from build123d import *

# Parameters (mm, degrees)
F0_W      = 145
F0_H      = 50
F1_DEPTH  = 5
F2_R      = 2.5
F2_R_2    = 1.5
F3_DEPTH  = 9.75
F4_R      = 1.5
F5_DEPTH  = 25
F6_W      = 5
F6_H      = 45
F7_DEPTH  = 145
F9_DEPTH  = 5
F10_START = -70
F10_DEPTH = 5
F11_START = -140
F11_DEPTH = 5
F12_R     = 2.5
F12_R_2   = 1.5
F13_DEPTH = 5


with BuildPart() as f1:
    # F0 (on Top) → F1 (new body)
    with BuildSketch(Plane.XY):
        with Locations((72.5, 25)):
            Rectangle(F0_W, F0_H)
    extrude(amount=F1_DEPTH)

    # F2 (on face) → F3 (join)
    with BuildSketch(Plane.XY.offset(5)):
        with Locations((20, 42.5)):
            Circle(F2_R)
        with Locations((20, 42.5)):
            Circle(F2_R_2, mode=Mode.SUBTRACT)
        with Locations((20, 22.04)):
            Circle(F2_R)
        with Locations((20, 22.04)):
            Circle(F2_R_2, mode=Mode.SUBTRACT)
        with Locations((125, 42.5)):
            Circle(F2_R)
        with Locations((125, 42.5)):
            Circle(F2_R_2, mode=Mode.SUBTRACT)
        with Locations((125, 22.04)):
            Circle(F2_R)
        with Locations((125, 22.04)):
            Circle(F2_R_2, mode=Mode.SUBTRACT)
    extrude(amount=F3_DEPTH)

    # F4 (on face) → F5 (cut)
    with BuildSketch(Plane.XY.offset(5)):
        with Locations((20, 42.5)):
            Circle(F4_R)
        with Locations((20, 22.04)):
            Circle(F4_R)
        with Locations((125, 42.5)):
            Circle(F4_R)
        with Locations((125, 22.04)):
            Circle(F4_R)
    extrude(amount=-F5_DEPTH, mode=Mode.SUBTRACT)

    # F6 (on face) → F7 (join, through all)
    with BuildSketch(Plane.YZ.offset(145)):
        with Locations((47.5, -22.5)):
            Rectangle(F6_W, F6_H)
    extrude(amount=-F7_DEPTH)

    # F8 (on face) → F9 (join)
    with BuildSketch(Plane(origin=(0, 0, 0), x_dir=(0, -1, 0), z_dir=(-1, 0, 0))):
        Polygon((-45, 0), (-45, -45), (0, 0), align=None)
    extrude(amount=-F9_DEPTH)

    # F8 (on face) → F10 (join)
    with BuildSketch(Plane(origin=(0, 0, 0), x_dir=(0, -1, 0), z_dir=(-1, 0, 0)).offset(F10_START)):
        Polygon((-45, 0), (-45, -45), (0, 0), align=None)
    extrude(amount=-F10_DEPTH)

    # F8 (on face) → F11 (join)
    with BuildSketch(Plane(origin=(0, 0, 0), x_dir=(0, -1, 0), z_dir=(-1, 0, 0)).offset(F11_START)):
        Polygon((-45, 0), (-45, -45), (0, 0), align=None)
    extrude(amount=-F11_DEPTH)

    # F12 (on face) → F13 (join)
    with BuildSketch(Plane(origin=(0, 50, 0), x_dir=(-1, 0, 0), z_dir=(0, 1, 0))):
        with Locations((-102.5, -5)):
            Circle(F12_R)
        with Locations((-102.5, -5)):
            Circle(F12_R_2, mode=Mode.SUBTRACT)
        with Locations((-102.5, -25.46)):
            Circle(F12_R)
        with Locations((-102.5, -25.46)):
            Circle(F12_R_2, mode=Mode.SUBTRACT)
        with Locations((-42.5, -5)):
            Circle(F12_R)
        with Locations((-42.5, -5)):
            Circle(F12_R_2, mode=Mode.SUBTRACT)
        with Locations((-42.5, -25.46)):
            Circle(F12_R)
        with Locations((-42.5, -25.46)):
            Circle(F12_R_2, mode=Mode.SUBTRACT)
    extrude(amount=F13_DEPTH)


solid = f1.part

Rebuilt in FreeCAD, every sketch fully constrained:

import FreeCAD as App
import Part
import Sketcher
from FreeCAD import Vector

doc = App.newDocument("Part")
body = doc.addObject("PartDesign::Body", "Body")

# Sketch on XY plane
sketch1 = body.newObject("Sketcher::SketchObject", "Sketch")
sketch1.AttachmentSupport = (doc.getObject("XY_Plane"), [""])
sketch1.MapMode = "FlatFace"
sketch1.addGeometry([
    Part.LineSegment(Vector(0, 50, 0), Vector(0, 0, 0)),
    Part.LineSegment(Vector(0, 0, 0), Vector(145, 0, 0)),
    Part.LineSegment(Vector(145, 0, 0), Vector(145, 50, 0)),
    Part.LineSegment(Vector(145, 50, 0), Vector(0, 50, 0)),
], False)
sketch1.addConstraint([
    Sketcher.Constraint("Coincident", 0, 2, 1, 1),
    Sketcher.Constraint("Coincident", 1, 2, 2, 1),
    Sketcher.Constraint("Coincident", 2, 2, 3, 1),
    Sketcher.Constraint("Coincident", 3, 2, 0, 1),
    Sketcher.Constraint("Vertical", 0),
    Sketcher.Constraint("Horizontal", 1),
    Sketcher.Constraint("Vertical", 2),
    Sketcher.Constraint("Horizontal", 3),
    Sketcher.Constraint("Coincident", 0, 2, -1, 1),
    Sketcher.Constraint("DistanceX", 1, 1, 1, 2, 145.0),
    Sketcher.Constraint("DistanceY", 0, 2, 0, 1, 50.0),
])
pad1 = body.newObject("PartDesign::Pad", "Pad")
pad1.Profile = sketch1
pad1.Length = 5

# Sketch on XY plane
sketch2 = body.newObject("Sketcher::SketchObject", "Sketch001")
sketch2.AttachmentSupport = (doc.getObject("XY_Plane"), [""])
sketch2.MapMode = "FlatFace"
sketch2.AttachmentOffset = App.Placement(Vector(0, 0, 5), App.Rotation())
sketch2.addGeometry([
    Part.Circle(Vector(20, 42.5, 0), Vector(0, 0, 1), 2.5),  # 0
    Part.Circle(Vector(20, 42.5, 0), Vector(0, 0, 1), 1.5),  # 1
    Part.Circle(Vector(20, 22, 0), Vector(0, 0, 1), 2.5),  # 2
    Part.Circle(Vector(20, 22, 0), Vector(0, 0, 1), 1.5),  # 3
    Part.Circle(Vector(125, 42.5, 0), Vector(0, 0, 1), 2.5),  # 4
    Part.Circle(Vector(125, 42.5, 0), Vector(0, 0, 1), 1.5),  # 5
    Part.Circle(Vector(125, 22, 0), Vector(0, 0, 1), 2.5),  # 6
    Part.Circle(Vector(125, 22, 0), Vector(0, 0, 1), 1.5),  # 7
], False)
sketch2.addConstraint([
    Sketcher.Constraint("Coincident", 1, 3, 0, 3),
    Sketcher.Constraint("Coincident", 3, 3, 2, 3),
    Sketcher.Constraint("Coincident", 5, 3, 4, 3),
    Sketcher.Constraint("Coincident", 7, 3, 6, 3),
    Sketcher.Constraint("Equal", 0, 2),
    Sketcher.Constraint("Equal", 1, 3),
    Sketcher.Constraint("Equal", 2, 4),
    Sketcher.Constraint("Equal", 3, 5),
    Sketcher.Constraint("Equal", 4, 6),
    Sketcher.Constraint("Equal", 5, 7),
    Sketcher.Constraint("Horizontal", 1, 3, 4, 3),
    Sketcher.Constraint("Horizontal", 3, 3, 6, 3),
    Sketcher.Constraint("Vertical", 1, 3, 2, 3),
    Sketcher.Constraint("Vertical", 5, 3, 6, 3),
    Sketcher.Constraint("Diameter", 0, 5.0),
    Sketcher.Constraint("Diameter", 1, 3.0),
    Sketcher.Constraint("DistanceX", -1, 1, 0, 3, 20.0),
    Sketcher.Constraint("DistanceX", -1, 1, 4, 3, 125.0),
    Sketcher.Constraint("DistanceY", -1, 1, 0, 3, 42.5),
    Sketcher.Constraint("DistanceY", -1, 1, 2, 3, 22.04),
])
pad2 = body.newObject("PartDesign::Pad", "Pad001")
pad2.Profile = sketch2
pad2.Length = 9.75

# Sketch on XY plane
sketch3 = body.newObject("Sketcher::SketchObject", "Sketch002")
sketch3.AttachmentSupport = (doc.getObject("XY_Plane"), [""])
sketch3.MapMode = "FlatFace"
sketch3.AttachmentOffset = App.Placement(Vector(0, 0, 5), App.Rotation())
sketch3.addGeometry([
    Part.Circle(Vector(20, 42.5, 0), Vector(0, 0, 1), 1.5),
    Part.Circle(Vector(20, 22, 0), Vector(0, 0, 1), 1.5),
    Part.Circle(Vector(125, 42.5, 0), Vector(0, 0, 1), 1.5),
    Part.Circle(Vector(125, 22, 0), Vector(0, 0, 1), 1.5),
], False)
sketch3.addConstraint([
    Sketcher.Constraint("Equal", 0, 1),
    Sketcher.Constraint("Equal", 1, 2),
    Sketcher.Constraint("Equal", 2, 3),
    Sketcher.Constraint("Horizontal", 0, 3, 2, 3),
    Sketcher.Constraint("Horizontal", 1, 3, 3, 3),
    Sketcher.Constraint("Vertical", 0, 3, 1, 3),
    Sketcher.Constraint("Vertical", 2, 3, 3, 3),
    Sketcher.Constraint("Diameter", 0, 3.0),
    Sketcher.Constraint("DistanceX", -1, 1, 0, 3, 20.0),
    Sketcher.Constraint("DistanceX", -1, 1, 2, 3, 125.0),
    Sketcher.Constraint("DistanceY", -1, 1, 0, 3, 42.5),
    Sketcher.Constraint("DistanceY", -1, 1, 1, 3, 22.04),
])
pocket1 = body.newObject("PartDesign::Pocket", "Pocket")
pocket1.Profile = sketch3
pocket1.Length = 25

# Sketch on YZ plane
sketch4 = body.newObject("Sketcher::SketchObject", "Sketch003")
sketch4.AttachmentSupport = (doc.getObject("YZ_Plane"), [""])
sketch4.MapMode = "FlatFace"
sketch4.AttachmentOffset = App.Placement(Vector(0, 0, 145), App.Rotation())
sketch4.addGeometry([
    Part.LineSegment(Vector(45, 0, 0), Vector(45, -45, 0)),
    Part.LineSegment(Vector(45, -45, 0), Vector(50, -45, 0)),
    Part.LineSegment(Vector(50, -45, 0), Vector(50, 0, 0)),
    Part.LineSegment(Vector(50, 0, 0), Vector(45, 0, 0)),
], False)
sketch4.addConstraint([
    Sketcher.Constraint("Coincident", 0, 2, 1, 1),
    Sketcher.Constraint("Coincident", 1, 2, 2, 1),
    Sketcher.Constraint("Coincident", 2, 2, 3, 1),
    Sketcher.Constraint("Coincident", 3, 2, 0, 1),
    Sketcher.Constraint("Vertical", 0),
    Sketcher.Constraint("Horizontal", 1),
    Sketcher.Constraint("Vertical", 2),
    Sketcher.Constraint("Horizontal", 3),
    Sketcher.Constraint("PointOnObject", 2, 2, -1),
    Sketcher.Constraint("DistanceX", 1, 1, 1, 2, 5.0),
    Sketcher.Constraint("DistanceY", 0, 2, 0, 1, 45.0),
    Sketcher.Constraint("DistanceX", -1, 1, 0, 2, 45.0),
])
pad3 = body.newObject("PartDesign::Pad", "Pad002")
pad3.Profile = sketch4
pad3.Length = 145
pad3.Reversed = True

# Sketch on YZ plane
sketch5 = body.newObject("Sketcher::SketchObject", "Sketch004")
sketch5.AttachmentSupport = (doc.getObject("YZ_Plane"), [""])
sketch5.MapMode = "FlatFace"
sketch5.addGeometry([
    Part.LineSegment(Vector(45, 0, 0), Vector(45, -45, 0)),
    Part.LineSegment(Vector(45, -45, 0), Vector(0, 0, 0)),
    Part.LineSegment(Vector(0, 0, 0), Vector(45, 0, 0)),
], False)
sketch5.addConstraint([
    Sketcher.Constraint("Coincident", 0, 2, 1, 1),
    Sketcher.Constraint("Coincident", 1, 2, 2, 1),
    Sketcher.Constraint("Coincident", 2, 2, 0, 1),
    Sketcher.Constraint("Vertical", 0),
    Sketcher.Constraint("Horizontal", 2),
    Sketcher.Constraint("Coincident", 1, 2, -1, 1),
    Sketcher.Constraint("Equal", 2, 0),
    Sketcher.Constraint("DistanceX", 2, 1, 2, 2, 45.0),
])
pad4 = body.newObject("PartDesign::Pad", "Pad003")
pad4.Profile = sketch5
pad4.Length = 5

# Sketch on YZ plane
sketch6 = body.newObject("Sketcher::SketchObject", "Sketch005")
sketch6.AttachmentSupport = (doc.getObject("YZ_Plane"), [""])
sketch6.MapMode = "FlatFace"
sketch6.AttachmentOffset = App.Placement(Vector(0, 0, 70), App.Rotation())
sketch6.addGeometry([
    Part.LineSegment(Vector(45, 0, 0), Vector(45, -45, 0)),
    Part.LineSegment(Vector(45, -45, 0), Vector(0, 0, 0)),
    Part.LineSegment(Vector(0, 0, 0), Vector(45, 0, 0)),
], False)
sketch6.addConstraint([
    Sketcher.Constraint("Coincident", 0, 2, 1, 1),
    Sketcher.Constraint("Coincident", 1, 2, 2, 1),
    Sketcher.Constraint("Coincident", 2, 2, 0, 1),
    Sketcher.Constraint("Vertical", 0),
    Sketcher.Constraint("Horizontal", 2),
    Sketcher.Constraint("Coincident", 1, 2, -1, 1),
    Sketcher.Constraint("Equal", 2, 0),
    Sketcher.Constraint("DistanceX", 2, 1, 2, 2, 45.0),
])
pad5 = body.newObject("PartDesign::Pad", "Pad004")
pad5.Profile = sketch6
pad5.Length = 5

# Sketch on YZ plane
sketch7 = body.newObject("Sketcher::SketchObject", "Sketch006")
sketch7.AttachmentSupport = (doc.getObject("YZ_Plane"), [""])
sketch7.MapMode = "FlatFace"
sketch7.AttachmentOffset = App.Placement(Vector(0, 0, 140), App.Rotation())
sketch7.addGeometry([
    Part.LineSegment(Vector(45, 0, 0), Vector(45, -45, 0)),
    Part.LineSegment(Vector(45, -45, 0), Vector(0, 0, 0)),
    Part.LineSegment(Vector(0, 0, 0), Vector(45, 0, 0)),
], False)
sketch7.addConstraint([
    Sketcher.Constraint("Coincident", 0, 2, 1, 1),
    Sketcher.Constraint("Coincident", 1, 2, 2, 1),
    Sketcher.Constraint("Coincident", 2, 2, 0, 1),
    Sketcher.Constraint("Vertical", 0),
    Sketcher.Constraint("Horizontal", 2),
    Sketcher.Constraint("Coincident", 1, 2, -1, 1),
    Sketcher.Constraint("Equal", 2, 0),
    Sketcher.Constraint("DistanceX", 2, 1, 2, 2, 45.0),
])
pad6 = body.newObject("PartDesign::Pad", "Pad005")
pad6.Profile = sketch7
pad6.Length = 5

# Sketch on XZ plane
sketch8 = body.newObject("Sketcher::SketchObject", "Sketch007")
sketch8.AttachmentSupport = (doc.getObject("XZ_Plane"), [""])
sketch8.MapMode = "FlatFace"
sketch8.AttachmentOffset = App.Placement(Vector(0, 0, -50), App.Rotation())
sketch8.addGeometry([
    Part.Circle(Vector(102.5, -5, 0), Vector(0, 0, 1), 2.5),  # 0
    Part.Circle(Vector(102.5, -5, 0), Vector(0, 0, 1), 1.5),  # 1
    Part.Circle(Vector(102.5, -25.5, 0), Vector(0, 0, 1), 2.5),  # 2
    Part.Circle(Vector(102.5, -25.5, 0), Vector(0, 0, 1), 1.5),  # 3
    Part.Circle(Vector(42.5, -5, 0), Vector(0, 0, 1), 2.5),  # 4
    Part.Circle(Vector(42.5, -5, 0), Vector(0, 0, 1), 1.5),  # 5
    Part.Circle(Vector(42.5, -25.5, 0), Vector(0, 0, 1), 2.5),  # 6
    Part.Circle(Vector(42.5, -25.5, 0), Vector(0, 0, 1), 1.5),  # 7
], False)
sketch8.addConstraint([
    Sketcher.Constraint("Coincident", 1, 3, 0, 3),
    Sketcher.Constraint("Coincident", 3, 3, 2, 3),
    Sketcher.Constraint("Coincident", 5, 3, 4, 3),
    Sketcher.Constraint("Coincident", 7, 3, 6, 3),
    Sketcher.Constraint("Equal", 0, 2),
    Sketcher.Constraint("Equal", 1, 3),
    Sketcher.Constraint("Equal", 2, 4),
    Sketcher.Constraint("Equal", 3, 5),
    Sketcher.Constraint("Equal", 4, 6),
    Sketcher.Constraint("Equal", 5, 7),
    Sketcher.Constraint("Horizontal", 1, 3, 4, 3),
    Sketcher.Constraint("Horizontal", 3, 3, 6, 3),
    Sketcher.Constraint("Vertical", 1, 3, 2, 3),
    Sketcher.Constraint("Vertical", 5, 3, 6, 3),
    Sketcher.Constraint("Diameter", 0, 5.0),
    Sketcher.Constraint("Diameter", 1, 3.0),
    Sketcher.Constraint("DistanceY", 0, 3, -1, 1, 5.0),
    Sketcher.Constraint("DistanceX", 4, 3, 0, 3, 60.0),
    Sketcher.Constraint("DistanceX", -1, 1, 0, 3, 102.5),
    Sketcher.Constraint("DistanceY", 2, 3, -1, 1, 25.46),
])
pad7 = body.newObject("PartDesign::Pad", "Pad006")
pad7.Profile = sketch8
pad7.Length = 5
pad7.Reversed = True

doc.recompute()
